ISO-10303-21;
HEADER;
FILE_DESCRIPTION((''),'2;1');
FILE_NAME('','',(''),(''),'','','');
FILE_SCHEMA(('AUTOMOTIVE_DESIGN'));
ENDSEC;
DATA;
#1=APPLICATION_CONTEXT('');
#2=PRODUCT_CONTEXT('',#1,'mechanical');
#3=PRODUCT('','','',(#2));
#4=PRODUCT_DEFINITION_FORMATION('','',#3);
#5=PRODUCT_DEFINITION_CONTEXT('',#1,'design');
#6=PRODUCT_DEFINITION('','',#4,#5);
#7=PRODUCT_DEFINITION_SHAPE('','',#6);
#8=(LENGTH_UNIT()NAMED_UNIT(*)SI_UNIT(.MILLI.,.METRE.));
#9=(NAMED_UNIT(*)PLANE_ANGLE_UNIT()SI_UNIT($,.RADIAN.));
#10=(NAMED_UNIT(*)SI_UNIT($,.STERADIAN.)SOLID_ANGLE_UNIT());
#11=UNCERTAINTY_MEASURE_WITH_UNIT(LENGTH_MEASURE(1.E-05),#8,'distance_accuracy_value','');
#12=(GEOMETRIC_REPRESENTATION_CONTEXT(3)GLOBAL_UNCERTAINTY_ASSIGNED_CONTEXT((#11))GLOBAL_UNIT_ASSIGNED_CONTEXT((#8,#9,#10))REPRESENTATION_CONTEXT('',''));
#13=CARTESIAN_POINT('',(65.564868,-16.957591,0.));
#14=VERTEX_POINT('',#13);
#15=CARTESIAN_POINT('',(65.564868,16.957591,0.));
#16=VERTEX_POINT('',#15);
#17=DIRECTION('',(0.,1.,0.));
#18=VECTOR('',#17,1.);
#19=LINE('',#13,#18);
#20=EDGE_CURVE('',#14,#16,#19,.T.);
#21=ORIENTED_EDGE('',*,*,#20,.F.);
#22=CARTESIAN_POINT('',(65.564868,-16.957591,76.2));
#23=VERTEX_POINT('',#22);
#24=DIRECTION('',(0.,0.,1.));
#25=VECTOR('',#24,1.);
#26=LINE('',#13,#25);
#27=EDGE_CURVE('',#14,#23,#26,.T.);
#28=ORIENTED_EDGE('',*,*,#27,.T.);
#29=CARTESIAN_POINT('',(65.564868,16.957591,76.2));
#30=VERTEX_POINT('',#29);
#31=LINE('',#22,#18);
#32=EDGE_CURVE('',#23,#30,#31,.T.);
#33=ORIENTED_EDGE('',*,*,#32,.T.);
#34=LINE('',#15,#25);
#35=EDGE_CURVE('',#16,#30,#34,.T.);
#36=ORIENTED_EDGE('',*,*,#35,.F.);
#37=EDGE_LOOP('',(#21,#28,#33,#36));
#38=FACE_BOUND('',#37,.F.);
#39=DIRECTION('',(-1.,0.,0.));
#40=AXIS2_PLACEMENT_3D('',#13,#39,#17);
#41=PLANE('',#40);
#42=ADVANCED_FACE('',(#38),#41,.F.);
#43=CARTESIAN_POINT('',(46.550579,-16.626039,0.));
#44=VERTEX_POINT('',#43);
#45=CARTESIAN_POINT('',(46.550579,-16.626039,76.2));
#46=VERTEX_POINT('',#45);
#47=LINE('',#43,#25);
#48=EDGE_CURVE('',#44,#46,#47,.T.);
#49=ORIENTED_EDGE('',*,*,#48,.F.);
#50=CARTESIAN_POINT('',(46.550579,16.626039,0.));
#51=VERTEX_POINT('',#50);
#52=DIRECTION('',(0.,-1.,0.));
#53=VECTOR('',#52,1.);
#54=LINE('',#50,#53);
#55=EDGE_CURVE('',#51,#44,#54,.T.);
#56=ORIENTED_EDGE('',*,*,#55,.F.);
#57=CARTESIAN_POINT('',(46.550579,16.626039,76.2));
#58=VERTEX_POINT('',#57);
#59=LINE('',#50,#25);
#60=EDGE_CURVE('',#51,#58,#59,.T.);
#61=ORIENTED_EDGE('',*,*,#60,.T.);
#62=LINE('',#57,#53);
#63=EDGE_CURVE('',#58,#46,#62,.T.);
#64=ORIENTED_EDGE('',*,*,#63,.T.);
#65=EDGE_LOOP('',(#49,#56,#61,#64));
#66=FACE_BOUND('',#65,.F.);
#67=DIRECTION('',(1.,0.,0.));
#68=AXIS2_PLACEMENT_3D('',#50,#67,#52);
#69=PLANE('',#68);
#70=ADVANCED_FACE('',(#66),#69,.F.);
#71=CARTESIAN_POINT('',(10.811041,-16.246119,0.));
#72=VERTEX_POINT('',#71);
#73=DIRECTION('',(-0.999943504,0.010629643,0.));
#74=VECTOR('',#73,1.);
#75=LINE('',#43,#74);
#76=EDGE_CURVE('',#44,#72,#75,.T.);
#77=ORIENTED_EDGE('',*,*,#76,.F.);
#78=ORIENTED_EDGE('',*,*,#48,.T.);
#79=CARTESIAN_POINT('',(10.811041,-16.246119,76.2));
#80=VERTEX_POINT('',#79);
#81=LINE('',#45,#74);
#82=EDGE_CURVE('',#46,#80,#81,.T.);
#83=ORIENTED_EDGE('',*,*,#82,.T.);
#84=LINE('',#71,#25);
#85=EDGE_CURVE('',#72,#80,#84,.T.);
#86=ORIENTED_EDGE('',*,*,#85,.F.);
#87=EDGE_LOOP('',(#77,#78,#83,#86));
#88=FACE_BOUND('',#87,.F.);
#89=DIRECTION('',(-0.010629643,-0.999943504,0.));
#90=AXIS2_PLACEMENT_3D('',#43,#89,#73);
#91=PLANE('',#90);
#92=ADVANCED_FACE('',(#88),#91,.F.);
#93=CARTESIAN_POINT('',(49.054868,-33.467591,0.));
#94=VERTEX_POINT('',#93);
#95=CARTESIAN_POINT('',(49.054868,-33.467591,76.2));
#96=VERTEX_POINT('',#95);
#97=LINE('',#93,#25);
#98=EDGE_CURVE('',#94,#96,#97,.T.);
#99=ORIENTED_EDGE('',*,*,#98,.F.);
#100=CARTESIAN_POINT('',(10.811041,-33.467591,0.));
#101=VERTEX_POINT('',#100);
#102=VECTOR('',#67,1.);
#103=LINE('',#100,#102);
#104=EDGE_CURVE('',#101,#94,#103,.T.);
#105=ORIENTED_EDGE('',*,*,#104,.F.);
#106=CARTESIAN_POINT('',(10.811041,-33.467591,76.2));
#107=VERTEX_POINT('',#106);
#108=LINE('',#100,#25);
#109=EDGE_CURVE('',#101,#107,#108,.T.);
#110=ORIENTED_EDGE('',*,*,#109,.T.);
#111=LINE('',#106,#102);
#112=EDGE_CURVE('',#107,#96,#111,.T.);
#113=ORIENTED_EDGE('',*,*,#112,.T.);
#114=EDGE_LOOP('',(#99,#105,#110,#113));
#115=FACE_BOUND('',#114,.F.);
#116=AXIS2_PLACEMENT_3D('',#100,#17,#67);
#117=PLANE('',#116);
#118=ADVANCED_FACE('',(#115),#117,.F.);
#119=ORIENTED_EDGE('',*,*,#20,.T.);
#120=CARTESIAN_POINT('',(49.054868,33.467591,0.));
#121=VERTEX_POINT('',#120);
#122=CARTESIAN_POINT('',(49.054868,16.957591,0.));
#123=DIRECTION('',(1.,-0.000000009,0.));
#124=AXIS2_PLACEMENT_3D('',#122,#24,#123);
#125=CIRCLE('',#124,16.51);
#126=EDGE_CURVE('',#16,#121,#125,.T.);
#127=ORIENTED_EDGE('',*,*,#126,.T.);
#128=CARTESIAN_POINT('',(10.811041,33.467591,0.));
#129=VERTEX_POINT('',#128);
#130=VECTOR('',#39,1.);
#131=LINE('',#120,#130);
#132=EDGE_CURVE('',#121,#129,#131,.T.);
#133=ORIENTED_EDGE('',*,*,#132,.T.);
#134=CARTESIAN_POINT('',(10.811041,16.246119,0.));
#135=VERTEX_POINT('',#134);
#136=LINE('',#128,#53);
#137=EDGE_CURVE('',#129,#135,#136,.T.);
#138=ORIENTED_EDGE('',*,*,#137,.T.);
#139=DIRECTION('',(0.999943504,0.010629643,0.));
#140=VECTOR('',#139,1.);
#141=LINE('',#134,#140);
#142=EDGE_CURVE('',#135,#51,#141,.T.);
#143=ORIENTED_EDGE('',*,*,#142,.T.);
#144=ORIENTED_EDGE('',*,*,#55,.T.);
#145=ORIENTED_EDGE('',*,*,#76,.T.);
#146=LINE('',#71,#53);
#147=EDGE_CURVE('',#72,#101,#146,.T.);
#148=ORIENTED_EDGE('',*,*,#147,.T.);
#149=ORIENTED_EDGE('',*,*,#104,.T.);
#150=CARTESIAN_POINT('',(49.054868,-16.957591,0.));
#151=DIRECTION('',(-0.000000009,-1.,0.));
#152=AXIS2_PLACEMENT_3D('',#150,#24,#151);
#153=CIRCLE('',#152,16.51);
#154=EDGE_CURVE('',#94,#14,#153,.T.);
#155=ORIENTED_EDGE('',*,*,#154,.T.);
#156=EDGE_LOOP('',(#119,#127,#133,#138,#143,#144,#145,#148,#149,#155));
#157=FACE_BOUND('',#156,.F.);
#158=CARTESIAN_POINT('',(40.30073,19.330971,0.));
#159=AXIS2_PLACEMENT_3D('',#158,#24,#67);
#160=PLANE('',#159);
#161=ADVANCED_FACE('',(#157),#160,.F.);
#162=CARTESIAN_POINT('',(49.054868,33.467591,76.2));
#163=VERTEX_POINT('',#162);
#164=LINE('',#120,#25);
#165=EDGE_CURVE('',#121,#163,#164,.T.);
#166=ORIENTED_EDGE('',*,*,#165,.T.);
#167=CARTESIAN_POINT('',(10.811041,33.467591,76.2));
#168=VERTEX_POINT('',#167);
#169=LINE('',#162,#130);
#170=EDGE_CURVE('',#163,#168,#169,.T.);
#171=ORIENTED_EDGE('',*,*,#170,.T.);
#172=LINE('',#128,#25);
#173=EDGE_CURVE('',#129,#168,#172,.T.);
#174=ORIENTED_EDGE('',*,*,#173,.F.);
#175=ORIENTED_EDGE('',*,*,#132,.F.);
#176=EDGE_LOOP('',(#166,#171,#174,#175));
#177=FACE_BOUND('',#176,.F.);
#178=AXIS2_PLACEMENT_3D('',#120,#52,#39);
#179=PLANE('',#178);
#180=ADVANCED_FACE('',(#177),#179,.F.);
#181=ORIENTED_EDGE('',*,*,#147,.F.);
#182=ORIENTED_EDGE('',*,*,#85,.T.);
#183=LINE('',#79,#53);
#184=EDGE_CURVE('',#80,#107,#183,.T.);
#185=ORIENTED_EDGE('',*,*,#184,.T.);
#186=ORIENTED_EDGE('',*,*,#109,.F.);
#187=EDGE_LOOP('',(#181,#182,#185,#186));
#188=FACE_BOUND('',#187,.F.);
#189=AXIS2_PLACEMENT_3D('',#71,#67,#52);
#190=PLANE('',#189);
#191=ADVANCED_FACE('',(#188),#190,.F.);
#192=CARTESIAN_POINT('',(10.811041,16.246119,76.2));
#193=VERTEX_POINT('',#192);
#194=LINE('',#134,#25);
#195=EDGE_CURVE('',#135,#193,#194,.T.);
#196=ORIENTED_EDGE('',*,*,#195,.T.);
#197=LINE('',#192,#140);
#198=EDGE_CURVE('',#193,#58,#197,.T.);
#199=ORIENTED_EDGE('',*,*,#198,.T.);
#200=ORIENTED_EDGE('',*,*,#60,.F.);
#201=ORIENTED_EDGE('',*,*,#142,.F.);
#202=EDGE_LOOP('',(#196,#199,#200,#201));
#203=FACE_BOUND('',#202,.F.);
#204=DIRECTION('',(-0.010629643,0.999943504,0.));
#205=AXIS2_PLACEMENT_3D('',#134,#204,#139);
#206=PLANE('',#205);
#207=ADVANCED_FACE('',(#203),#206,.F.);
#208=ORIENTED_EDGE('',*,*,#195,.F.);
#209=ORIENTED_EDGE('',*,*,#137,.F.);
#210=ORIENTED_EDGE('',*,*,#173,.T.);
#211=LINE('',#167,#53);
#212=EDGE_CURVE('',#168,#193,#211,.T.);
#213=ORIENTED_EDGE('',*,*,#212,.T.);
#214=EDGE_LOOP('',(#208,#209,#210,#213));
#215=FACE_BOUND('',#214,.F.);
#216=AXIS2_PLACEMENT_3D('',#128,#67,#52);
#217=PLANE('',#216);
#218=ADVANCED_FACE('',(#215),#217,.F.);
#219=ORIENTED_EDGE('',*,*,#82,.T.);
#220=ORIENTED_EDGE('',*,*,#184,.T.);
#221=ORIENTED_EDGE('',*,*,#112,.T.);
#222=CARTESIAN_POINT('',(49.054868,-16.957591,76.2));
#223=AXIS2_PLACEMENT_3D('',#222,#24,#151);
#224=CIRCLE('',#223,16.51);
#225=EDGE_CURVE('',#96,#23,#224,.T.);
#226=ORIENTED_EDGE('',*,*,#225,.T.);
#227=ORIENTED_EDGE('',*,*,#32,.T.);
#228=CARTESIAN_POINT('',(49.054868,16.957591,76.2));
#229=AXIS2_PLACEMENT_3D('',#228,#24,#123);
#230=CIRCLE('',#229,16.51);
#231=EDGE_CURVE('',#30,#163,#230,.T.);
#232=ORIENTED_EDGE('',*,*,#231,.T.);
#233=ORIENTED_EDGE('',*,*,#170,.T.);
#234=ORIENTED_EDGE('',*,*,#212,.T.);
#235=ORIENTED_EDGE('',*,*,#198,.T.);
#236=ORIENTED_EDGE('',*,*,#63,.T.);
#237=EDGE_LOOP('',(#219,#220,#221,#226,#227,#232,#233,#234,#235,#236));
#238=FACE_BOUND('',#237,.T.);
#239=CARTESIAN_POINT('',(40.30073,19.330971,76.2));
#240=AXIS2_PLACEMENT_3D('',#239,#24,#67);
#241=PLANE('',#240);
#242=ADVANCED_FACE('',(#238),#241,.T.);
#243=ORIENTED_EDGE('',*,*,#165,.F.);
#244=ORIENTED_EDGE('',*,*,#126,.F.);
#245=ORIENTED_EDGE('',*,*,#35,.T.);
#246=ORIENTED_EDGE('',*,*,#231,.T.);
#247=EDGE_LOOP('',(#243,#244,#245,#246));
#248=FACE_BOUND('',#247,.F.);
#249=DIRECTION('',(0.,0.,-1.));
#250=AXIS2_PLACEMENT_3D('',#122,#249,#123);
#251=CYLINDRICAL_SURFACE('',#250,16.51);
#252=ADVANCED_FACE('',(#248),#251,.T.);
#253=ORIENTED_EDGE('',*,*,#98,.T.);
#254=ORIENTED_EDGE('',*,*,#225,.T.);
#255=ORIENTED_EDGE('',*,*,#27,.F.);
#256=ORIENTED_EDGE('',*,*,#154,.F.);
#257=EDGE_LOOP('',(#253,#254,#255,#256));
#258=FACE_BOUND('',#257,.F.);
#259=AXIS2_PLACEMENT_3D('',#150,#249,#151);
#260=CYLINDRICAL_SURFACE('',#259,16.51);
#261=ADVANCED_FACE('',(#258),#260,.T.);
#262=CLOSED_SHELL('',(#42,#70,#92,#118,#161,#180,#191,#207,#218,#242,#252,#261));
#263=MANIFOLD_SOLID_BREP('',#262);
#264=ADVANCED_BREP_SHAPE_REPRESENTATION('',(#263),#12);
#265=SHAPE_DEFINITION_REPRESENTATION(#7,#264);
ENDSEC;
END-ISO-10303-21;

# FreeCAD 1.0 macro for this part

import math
import FreeCAD as App
import Part
import Sketcher
from FreeCAD import Vector
Q = App.Units.Quantity

doc = App.newDocument("Part")
body = doc.addObject("PartDesign::Body", "Body")

sketch1 = doc.addObject("Sketcher::SketchObject", "Sketch")
body.addObject(sketch1)
sketch1.AttachmentSupport = (doc.XY_Plane, [""])
sketch1.MapMode = "FlatFace"
sketch1.addGeometry(Part.LineSegment(Vector(47, 17, 0), Vector(47, -17, 0)), False)
sketch1.addGeometry(Part.LineSegment(Vector(47, -17, 0), Vector(11, -16, 0)), False)
sketch1.addGeometry(Part.LineSegment(Vector(11, -16, 0), Vector(11, -33, 0)), False)
sketch1.addGeometry(Part.LineSegment(Vector(11, -33, 0), Vector(49, -33, 0)), False)
sketch1.addGeometry(Part.ArcOfCircle(Part.Circle(Vector(49, -17, 0), Vector(0, 0, 1), 17), math.radians(-90), math.radians(0)), False)
sketch1.addGeometry(Part.LineSegment(Vector(66, -17, 0), Vector(66, 17, 0)), False)
sketch1.addGeometry(Part.ArcOfCircle(Part.Circle(Vector(49, 17, 0), Vector(0, 0, 1), 17), math.radians(0), math.radians(90)), False)
sketch1.addGeometry(Part.LineSegment(Vector(49, 33, 0), Vector(11, 33, 0)), False)
sketch1.addGeometry(Part.LineSegment(Vector(11, 33, 0), Vector(11, 16, 0)), False)
sketch1.addGeometry(Part.LineSegment(Vector(11, 16, 0), Vector(47, 17, 0)), False)
sketch1.addConstraint(Sketcher.Constraint("Coincident", 0, 2, 1, 1))
sketch1.addConstraint(Sketcher.Constraint("Coincident", 1, 2, 2, 1))
sketch1.addConstraint(Sketcher.Constraint("Coincident", 2, 2, 3, 1))
sketch1.addConstraint(Sketcher.Constraint("Tangent", 3, 2, 4, 1))
sketch1.addConstraint(Sketcher.Constraint("Tangent", 4, 2, 5, 1))
sketch1.addConstraint(Sketcher.Constraint("Tangent", 5, 2, 6, 1))
sketch1.addConstraint(Sketcher.Constraint("Tangent", 6, 2, 7, 1))
sketch1.addConstraint(Sketcher.Constraint("Coincident", 7, 2, 8, 1))
sketch1.addConstraint(Sketcher.Constraint("Coincident", 8, 2, 9, 1))
sketch1.addConstraint(Sketcher.Constraint("Coincident", 9, 2, 0, 1))
sketch1.addConstraint(Sketcher.Constraint("Vertical", 0))
sketch1.addConstraint(Sketcher.Constraint("Vertical", 2))
sketch1.addConstraint(Sketcher.Constraint("Horizontal", 3))
sketch1.addConstraint(Sketcher.Constraint("Vertical", 5))
sketch1.addConstraint(Sketcher.Constraint("Horizontal", 7))
sketch1.addConstraint(Sketcher.Constraint("Vertical", 8))
sketch1.addConstraint(Sketcher.Constraint("Equal", 4, 6))
sketch1.addConstraint(Sketcher.Constraint("Symmetric", 2, 2, 7, 2, -1))
sketch1.addConstraint(Sketcher.Constraint("Equal", 2, 8))
sketch1.addConstraint(Sketcher.Constraint("Equal", 1, 9))
sketch1.addConstraint(Sketcher.Constraint("Radius", 4, Q("0.65 in")))
sketch1.addConstraint(Sketcher.Constraint("DistanceX", -1, 1, 0, 2, Q("1.8327 in")))
sketch1.addConstraint(Sketcher.Constraint("DistanceY", 2, 2, 2, 1, 17.221472))
sketch1.addConstraint(Sketcher.Constraint("DistanceX", 3, 1, 3, 2, 38.243827))
sketch1.addConstraint(Sketcher.Constraint("DistanceY", 0, 2, 0, 1, 33.252078))
sketch1.addConstraint(Sketcher.Constraint("DistanceY", 5, 1, 5, 2, 33.915182))
sketch1.addConstraint(Sketcher.Constraint("DistanceX", -1, 1, 4, 3, 49.054868))
pad1 = doc.addObject("PartDesign::Pad", "Pad")
body.addObject(pad1)
pad1.Profile = sketch1
pad1.Length = Q("3 in")

doc.recompute()
